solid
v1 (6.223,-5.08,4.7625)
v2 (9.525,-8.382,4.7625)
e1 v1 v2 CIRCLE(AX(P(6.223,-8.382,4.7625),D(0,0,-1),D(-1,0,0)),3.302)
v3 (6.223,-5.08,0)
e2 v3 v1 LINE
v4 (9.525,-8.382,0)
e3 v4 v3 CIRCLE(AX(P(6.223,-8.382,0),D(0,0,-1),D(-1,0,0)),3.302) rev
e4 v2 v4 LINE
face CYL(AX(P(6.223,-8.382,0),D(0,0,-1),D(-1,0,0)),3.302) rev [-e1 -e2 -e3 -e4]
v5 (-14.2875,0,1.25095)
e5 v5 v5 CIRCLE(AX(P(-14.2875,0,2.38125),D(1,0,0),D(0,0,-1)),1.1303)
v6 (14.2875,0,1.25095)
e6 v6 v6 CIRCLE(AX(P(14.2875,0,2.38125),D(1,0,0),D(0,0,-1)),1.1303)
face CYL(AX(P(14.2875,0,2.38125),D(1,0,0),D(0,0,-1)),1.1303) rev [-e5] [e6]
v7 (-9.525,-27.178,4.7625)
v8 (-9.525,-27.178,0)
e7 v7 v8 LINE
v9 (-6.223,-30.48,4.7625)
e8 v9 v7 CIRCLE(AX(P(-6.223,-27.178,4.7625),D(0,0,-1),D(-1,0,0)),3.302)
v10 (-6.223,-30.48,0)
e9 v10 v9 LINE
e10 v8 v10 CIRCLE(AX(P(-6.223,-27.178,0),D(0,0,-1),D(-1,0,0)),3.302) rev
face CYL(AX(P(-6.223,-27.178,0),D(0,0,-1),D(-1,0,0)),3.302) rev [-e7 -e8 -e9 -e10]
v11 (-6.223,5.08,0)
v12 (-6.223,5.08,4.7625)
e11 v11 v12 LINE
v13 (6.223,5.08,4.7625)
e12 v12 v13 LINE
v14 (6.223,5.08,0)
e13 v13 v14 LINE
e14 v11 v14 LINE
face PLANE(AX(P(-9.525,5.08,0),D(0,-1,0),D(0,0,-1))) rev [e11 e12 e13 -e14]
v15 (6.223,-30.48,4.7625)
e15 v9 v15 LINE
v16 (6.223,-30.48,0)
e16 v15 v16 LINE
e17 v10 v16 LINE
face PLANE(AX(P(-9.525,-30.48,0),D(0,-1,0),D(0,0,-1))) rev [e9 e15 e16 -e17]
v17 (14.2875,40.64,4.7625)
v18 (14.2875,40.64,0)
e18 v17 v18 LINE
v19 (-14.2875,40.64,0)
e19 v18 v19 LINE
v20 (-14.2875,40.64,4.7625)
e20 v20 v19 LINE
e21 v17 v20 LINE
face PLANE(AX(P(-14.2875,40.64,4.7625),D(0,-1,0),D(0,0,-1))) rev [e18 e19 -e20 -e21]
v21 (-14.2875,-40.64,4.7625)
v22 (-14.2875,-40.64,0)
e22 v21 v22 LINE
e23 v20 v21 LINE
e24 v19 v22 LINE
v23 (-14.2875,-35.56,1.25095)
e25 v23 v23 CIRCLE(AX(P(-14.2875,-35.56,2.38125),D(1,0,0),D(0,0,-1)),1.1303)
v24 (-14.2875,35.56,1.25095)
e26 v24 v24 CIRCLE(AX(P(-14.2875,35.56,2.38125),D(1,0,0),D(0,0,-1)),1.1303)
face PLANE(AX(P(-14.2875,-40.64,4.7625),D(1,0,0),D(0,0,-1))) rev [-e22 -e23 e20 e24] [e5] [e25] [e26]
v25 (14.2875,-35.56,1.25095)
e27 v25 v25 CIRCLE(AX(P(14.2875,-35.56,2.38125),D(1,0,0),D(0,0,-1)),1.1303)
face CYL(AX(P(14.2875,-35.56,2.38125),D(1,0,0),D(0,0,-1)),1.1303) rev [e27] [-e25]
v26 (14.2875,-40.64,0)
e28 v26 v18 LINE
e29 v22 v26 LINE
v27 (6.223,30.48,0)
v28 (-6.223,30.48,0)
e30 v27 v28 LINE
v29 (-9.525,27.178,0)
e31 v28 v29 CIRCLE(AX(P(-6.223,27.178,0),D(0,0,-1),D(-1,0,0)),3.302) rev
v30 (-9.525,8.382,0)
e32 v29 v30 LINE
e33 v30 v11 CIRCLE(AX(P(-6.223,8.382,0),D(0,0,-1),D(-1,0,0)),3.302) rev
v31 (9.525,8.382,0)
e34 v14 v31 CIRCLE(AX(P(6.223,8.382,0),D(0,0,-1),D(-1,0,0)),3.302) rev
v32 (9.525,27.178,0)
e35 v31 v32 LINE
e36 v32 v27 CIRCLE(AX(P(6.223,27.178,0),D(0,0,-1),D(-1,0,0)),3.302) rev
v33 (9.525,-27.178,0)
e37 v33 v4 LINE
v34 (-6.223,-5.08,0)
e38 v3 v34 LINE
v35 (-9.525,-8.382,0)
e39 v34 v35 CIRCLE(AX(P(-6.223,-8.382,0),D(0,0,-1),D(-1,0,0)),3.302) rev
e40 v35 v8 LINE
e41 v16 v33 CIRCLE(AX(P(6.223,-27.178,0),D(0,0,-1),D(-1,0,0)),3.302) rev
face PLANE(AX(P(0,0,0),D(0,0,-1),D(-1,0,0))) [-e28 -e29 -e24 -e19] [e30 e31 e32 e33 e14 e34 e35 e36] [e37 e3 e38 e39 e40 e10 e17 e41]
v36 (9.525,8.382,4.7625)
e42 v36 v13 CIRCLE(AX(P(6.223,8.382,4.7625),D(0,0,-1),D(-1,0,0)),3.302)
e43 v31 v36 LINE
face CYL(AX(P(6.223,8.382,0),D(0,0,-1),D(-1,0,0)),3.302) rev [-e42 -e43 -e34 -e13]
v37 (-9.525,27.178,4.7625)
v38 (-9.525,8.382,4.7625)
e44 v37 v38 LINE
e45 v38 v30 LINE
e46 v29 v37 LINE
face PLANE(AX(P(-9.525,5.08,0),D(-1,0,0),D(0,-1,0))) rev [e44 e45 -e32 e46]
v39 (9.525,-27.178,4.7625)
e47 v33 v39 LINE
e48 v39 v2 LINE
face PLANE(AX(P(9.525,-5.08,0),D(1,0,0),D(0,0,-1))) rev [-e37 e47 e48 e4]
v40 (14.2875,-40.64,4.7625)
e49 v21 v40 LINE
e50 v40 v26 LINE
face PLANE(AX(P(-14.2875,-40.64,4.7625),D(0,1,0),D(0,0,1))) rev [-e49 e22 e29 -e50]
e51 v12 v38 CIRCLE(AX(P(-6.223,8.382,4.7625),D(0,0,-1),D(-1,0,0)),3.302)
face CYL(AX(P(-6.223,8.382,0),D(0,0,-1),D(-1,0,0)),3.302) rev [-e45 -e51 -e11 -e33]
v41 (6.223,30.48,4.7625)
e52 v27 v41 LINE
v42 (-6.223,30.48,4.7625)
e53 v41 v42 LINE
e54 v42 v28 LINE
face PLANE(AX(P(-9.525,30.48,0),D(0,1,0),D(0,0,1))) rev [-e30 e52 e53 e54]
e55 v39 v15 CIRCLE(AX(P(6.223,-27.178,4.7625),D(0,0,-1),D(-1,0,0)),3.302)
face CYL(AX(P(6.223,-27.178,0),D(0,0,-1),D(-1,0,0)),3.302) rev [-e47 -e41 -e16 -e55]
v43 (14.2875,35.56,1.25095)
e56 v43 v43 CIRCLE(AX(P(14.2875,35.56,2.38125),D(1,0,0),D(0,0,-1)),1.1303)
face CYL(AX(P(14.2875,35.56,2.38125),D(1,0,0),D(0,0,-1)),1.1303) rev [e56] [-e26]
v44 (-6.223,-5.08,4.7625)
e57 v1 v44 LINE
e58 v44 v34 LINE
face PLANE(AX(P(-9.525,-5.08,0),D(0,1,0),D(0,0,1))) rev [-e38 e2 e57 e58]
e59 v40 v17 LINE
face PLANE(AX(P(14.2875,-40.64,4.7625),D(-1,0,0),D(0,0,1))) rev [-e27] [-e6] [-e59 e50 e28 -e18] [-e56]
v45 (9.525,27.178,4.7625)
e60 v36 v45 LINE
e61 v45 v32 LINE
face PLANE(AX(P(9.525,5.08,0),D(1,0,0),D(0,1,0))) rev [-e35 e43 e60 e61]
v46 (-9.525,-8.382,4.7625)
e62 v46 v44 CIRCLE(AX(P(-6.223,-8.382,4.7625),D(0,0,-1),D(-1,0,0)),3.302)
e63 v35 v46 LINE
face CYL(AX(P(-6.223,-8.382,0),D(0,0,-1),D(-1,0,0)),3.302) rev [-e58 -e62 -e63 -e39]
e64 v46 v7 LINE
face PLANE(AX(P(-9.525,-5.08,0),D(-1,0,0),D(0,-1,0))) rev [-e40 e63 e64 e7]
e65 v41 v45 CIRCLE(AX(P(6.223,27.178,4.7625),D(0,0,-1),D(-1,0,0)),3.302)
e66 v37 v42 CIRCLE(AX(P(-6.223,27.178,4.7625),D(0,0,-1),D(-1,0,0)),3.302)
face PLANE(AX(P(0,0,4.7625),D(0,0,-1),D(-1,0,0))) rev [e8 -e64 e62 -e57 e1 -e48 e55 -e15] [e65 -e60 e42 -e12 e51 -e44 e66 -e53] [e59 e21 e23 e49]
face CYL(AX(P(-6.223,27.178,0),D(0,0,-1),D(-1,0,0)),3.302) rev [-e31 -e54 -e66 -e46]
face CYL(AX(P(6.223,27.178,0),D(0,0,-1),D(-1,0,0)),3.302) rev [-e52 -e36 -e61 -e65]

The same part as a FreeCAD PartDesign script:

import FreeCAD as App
import Part
import Sketcher

V = App.Vector
Q = App.Units.Quantity


def edges_at(feature, points):
    """Names of the edges that pass closest to the given points."""
    edges = feature.Shape.Edges
    near = lambda p: min(range(len(edges)), key=lambda i: edges[i].distToShape(Part.Vertex(*p))[0])
    return sorted({f"Edge{near(p) + 1}" for p in points})


def add_polygon(sketch, points):
    """Adds a closed chain of lines whose ends are joined by coincident constraints."""
    first, n = sketch.GeometryCount, len(points)
    for a, b in zip(points, points[1:] + points[:1]):
        sketch.addGeometry(Part.LineSegment(App.Vector(*a, 0), App.Vector(*b, 0)), False)
    for i in range(n):
        sketch.addConstraint(Sketcher.Constraint("Coincident", first + i, 2, first + (i + 1) % n, 1))

doc = App.newDocument("Part")
body = doc.addObject("PartDesign::Body", "Body")

# Sketch on XY plane
sketch1 = doc.addObject("Sketcher::SketchObject", "Sketch")
body.addObject(sketch1)
sketch1.AttachmentSupport = (doc.XY_Plane, [""])
sketch1.MapMode = "FlatFace"
add_polygon(sketch1, [(-14.2875, 40.64), (-14.2875, -40.64), (14.2875, -40.64), (14.2875, 40.64)])  # lines 0-3
sketch1.addConstraint([
    Sketcher.Constraint("Vertical", 0),
    Sketcher.Constraint("Horizontal", 1),
    Sketcher.Constraint("Vertical", 2),
    Sketcher.Constraint("Horizontal", 3),
    Sketcher.Constraint("Symmetric", 0, 2, 2, 2, -1, 1),
    Sketcher.Constraint("DistanceY", 0, 2, 0, 1, Q("3.2 in")),
    Sketcher.Constraint("DistanceX", 1, 1, 1, 2, Q("1.125 in")),
])
pad1 = doc.addObject("PartDesign::Pad", "Pad")
body.addObject(pad1)
pad1.Profile = sketch1
pad1.Length = Q("0.1875 in")

# Sketch on XY plane
sketch2 = doc.addObject("Sketcher::SketchObject", "Sketch001")
body.addObject(sketch2)
sketch2.AttachmentSupport = (doc.XY_Plane, [""])
sketch2.MapMode = "FlatFace"
sketch2.AttachmentOffset = App.Placement(V(0, 0, 0.1875 * 25.4), App.Rotation())
add_polygon(sketch2, [(-9.525, 30.48), (-9.525, 5.08), (9.525, 5.08), (9.525, 30.48)])  # lines 0-3
add_polygon(sketch2, [(-9.525, -5.08), (-9.525, -30.48), (9.525, -30.48), (9.525, -5.08)])  # lines 4-7
sketch2.addConstraint([
    Sketcher.Constraint("Vertical", 0),
    Sketcher.Constraint("Horizontal", 1),
    Sketcher.Constraint("Vertical", 2),
    Sketcher.Constraint("Horizontal", 3),
    Sketcher.Constraint("Vertical", 4),
    Sketcher.Constraint("Horizontal", 5),
    Sketcher.Constraint("Vertical", 6),
    Sketcher.Constraint("Horizontal", 7),
    Sketcher.Constraint("Symmetric", 2, 2, 4, 2, -1, 1),
    Sketcher.Constraint("Symmetric", 0, 2, 6, 2, -1, 1),
    Sketcher.Constraint("Vertical", 3, 2, 4, 2),
    Sketcher.Constraint("DistanceY", 0, 2, 0, 1, Q("1 in")),
    Sketcher.Constraint("DistanceX", 1, 1, 1, 2, Q("0.75 in")),
    Sketcher.Constraint("DistanceY", -1, 1, 0, 2, Q("0.2 in")),
])
pocket1 = doc.addObject("PartDesign::Pocket", "Pocket")
body.addObject(pocket1)
pocket1.Profile = sketch2
pocket1.Type = "ThroughAll"
doc.recompute()

fillet = doc.addObject("PartDesign::Fillet", "Fillet")
body.addObject(fillet)
fillet.Base = (pocket1, edges_at(pocket1, [
    (9.525, 30.48, 2.381),
    (9.525, 5.08, 2.381),
    (-9.525, 5.08, 2.381),
    (-9.525, 30.48, 2.381),
    (-9.525, -30.48, 2.381),
    (-9.525, -5.08, 2.381),
    (9.525, -5.08, 2.381),
    (9.525, -30.48, 2.381),
]))
fillet.Radius = Q("0.13 in")

# Sketch on YZ plane
sketch3 = doc.addObject("Sketcher::SketchObject", "Sketch002")
body.addObject(sketch3)
sketch3.AttachmentSupport = (doc.YZ_Plane, [""])
sketch3.MapMode = "FlatFace"
sketch3.AttachmentOffset = App.Placement(V(0, 0, 0.5625 * 25.4), App.Rotation())
sketch3.addGeometry([
    Part.Circle(V(35.56, 2.38125, 0), V(0, 0, 1), 1.1303),
    Part.Circle(V(0, 2.38125, 0), V(0, 0, 1), 1.1303),
    Part.Circle(V(-35.56, 2.38125, 0), V(0, 0, 1), 1.1303),
], False)
sketch3.addConstraint([
    Sketcher.Constraint("Equal", 0, 1),
    Sketcher.Constraint("Equal", 1, 2),
    Sketcher.Constraint("Symmetric", 0, 3, 2, 3, -2),
    Sketcher.Constraint("PointOnObject", 1, 3, -2),
    Sketcher.Constraint("Horizontal", 0, 3, 1, 3),
    Sketcher.Constraint("Diameter", 0, Q("0.089 in")),
    Sketcher.Constraint("DistanceX", -1, 1, 0, 3, Q("1.4 in")),
    Sketcher.Constraint("DistanceY", -1, 1, 0, 3, Q("0.09375 in")),
])
doc.recompute()
hole = doc.addObject("PartDesign::Hole", "Hole")
body.addObject(hole)
hole.Profile = sketch3
hole.ThreadType = "None"
hole.Diameter = Q("0.089 in")
hole.DepthType = "ThroughAll"

doc.recompute()
